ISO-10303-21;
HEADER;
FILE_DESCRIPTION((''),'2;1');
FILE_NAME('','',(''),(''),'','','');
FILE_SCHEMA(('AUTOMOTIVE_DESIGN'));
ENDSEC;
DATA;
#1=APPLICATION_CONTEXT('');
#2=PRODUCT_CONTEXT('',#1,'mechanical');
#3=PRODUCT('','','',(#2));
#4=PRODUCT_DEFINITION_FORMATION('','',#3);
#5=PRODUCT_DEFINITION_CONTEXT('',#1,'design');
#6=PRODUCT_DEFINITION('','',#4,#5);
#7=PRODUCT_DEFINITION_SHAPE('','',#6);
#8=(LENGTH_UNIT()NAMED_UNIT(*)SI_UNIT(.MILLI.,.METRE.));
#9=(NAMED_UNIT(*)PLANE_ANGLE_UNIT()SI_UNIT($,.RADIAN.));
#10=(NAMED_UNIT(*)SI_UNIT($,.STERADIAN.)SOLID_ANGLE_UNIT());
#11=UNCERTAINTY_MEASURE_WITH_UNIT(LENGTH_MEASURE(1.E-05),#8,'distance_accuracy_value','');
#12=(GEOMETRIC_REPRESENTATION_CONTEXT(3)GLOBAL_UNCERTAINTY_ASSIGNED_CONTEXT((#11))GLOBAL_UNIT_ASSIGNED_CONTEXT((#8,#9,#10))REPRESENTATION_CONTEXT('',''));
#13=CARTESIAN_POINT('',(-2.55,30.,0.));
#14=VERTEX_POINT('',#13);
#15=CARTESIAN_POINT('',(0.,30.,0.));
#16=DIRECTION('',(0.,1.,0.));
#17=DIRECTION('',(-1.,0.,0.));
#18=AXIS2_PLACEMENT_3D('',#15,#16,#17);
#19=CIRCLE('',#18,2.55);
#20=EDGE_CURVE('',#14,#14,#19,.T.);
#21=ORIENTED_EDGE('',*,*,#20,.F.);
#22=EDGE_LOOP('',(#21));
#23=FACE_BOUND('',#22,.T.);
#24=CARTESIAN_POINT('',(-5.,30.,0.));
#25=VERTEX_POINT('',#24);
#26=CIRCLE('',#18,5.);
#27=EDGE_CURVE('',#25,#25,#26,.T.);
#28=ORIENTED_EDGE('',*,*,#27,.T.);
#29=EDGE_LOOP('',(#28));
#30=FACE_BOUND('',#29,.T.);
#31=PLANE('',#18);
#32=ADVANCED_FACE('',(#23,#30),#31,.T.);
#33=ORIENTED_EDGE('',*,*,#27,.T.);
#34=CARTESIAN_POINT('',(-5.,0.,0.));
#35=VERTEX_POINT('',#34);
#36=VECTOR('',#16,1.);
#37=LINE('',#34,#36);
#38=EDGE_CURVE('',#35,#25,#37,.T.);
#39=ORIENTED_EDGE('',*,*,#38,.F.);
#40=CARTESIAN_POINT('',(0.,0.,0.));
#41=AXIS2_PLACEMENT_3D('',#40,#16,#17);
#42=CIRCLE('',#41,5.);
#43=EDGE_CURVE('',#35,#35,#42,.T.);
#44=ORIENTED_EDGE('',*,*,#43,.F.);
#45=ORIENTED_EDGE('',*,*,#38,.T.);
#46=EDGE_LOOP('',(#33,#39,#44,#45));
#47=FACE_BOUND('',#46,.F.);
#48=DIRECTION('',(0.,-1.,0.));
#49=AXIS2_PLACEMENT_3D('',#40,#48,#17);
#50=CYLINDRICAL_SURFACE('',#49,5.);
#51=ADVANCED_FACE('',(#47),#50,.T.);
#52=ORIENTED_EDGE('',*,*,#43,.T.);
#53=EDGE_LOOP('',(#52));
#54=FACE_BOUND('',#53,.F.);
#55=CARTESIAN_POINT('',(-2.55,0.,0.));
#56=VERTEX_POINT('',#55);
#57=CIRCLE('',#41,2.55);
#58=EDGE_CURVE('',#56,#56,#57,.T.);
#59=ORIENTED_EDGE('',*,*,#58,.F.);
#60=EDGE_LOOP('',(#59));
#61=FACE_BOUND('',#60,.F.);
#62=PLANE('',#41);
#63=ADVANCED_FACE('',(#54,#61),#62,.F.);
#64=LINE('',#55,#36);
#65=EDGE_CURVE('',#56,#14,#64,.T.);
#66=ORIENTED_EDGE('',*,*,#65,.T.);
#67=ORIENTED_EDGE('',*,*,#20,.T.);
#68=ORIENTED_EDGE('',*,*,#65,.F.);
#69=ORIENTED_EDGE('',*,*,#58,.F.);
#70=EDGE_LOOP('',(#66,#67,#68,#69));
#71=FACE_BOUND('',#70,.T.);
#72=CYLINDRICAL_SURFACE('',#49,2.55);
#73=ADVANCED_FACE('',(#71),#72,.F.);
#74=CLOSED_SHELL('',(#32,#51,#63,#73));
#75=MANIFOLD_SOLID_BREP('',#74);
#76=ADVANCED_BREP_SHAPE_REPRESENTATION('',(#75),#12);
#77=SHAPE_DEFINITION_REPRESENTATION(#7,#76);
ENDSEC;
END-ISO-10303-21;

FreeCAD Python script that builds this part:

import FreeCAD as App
import Part
import Sketcher
from FreeCAD import Vector
Q = App.Units.Quantity

doc = App.newDocument("Part")
body = doc.addObject("PartDesign::Body", "Body")

# Sketch on XZ plane
sketch1 = body.newObject("Sketcher::SketchObject", "Sketch")
sketch1.AttachmentSupport = (doc.getObject("XZ_Plane"), [""])
sketch1.MapMode = "FlatFace"
sketch1.addGeometry([
    Part.Circle(Vector(0, 0, 0), Vector(0, 0, 1), 5),
    Part.Circle(Vector(0, 0, 0), Vector(0, 0, 1), 2.5),
], False)
sketch1.addConstraint([
    Sketcher.Constraint("Coincident", 0, 3, -1, 1),
    Sketcher.Constraint("Coincident", 1, 3, -1, 1),
    Sketcher.Constraint("Diameter", 0, Q("10 mm")),
    Sketcher.Constraint("Diameter", 1, Q("5.1 mm")),
])
pad1 = body.newObject("PartDesign::Pad", "Pad")
pad1.Profile = sketch1
pad1.Length = 30
pad1.Reversed = True

doc.recompute()
